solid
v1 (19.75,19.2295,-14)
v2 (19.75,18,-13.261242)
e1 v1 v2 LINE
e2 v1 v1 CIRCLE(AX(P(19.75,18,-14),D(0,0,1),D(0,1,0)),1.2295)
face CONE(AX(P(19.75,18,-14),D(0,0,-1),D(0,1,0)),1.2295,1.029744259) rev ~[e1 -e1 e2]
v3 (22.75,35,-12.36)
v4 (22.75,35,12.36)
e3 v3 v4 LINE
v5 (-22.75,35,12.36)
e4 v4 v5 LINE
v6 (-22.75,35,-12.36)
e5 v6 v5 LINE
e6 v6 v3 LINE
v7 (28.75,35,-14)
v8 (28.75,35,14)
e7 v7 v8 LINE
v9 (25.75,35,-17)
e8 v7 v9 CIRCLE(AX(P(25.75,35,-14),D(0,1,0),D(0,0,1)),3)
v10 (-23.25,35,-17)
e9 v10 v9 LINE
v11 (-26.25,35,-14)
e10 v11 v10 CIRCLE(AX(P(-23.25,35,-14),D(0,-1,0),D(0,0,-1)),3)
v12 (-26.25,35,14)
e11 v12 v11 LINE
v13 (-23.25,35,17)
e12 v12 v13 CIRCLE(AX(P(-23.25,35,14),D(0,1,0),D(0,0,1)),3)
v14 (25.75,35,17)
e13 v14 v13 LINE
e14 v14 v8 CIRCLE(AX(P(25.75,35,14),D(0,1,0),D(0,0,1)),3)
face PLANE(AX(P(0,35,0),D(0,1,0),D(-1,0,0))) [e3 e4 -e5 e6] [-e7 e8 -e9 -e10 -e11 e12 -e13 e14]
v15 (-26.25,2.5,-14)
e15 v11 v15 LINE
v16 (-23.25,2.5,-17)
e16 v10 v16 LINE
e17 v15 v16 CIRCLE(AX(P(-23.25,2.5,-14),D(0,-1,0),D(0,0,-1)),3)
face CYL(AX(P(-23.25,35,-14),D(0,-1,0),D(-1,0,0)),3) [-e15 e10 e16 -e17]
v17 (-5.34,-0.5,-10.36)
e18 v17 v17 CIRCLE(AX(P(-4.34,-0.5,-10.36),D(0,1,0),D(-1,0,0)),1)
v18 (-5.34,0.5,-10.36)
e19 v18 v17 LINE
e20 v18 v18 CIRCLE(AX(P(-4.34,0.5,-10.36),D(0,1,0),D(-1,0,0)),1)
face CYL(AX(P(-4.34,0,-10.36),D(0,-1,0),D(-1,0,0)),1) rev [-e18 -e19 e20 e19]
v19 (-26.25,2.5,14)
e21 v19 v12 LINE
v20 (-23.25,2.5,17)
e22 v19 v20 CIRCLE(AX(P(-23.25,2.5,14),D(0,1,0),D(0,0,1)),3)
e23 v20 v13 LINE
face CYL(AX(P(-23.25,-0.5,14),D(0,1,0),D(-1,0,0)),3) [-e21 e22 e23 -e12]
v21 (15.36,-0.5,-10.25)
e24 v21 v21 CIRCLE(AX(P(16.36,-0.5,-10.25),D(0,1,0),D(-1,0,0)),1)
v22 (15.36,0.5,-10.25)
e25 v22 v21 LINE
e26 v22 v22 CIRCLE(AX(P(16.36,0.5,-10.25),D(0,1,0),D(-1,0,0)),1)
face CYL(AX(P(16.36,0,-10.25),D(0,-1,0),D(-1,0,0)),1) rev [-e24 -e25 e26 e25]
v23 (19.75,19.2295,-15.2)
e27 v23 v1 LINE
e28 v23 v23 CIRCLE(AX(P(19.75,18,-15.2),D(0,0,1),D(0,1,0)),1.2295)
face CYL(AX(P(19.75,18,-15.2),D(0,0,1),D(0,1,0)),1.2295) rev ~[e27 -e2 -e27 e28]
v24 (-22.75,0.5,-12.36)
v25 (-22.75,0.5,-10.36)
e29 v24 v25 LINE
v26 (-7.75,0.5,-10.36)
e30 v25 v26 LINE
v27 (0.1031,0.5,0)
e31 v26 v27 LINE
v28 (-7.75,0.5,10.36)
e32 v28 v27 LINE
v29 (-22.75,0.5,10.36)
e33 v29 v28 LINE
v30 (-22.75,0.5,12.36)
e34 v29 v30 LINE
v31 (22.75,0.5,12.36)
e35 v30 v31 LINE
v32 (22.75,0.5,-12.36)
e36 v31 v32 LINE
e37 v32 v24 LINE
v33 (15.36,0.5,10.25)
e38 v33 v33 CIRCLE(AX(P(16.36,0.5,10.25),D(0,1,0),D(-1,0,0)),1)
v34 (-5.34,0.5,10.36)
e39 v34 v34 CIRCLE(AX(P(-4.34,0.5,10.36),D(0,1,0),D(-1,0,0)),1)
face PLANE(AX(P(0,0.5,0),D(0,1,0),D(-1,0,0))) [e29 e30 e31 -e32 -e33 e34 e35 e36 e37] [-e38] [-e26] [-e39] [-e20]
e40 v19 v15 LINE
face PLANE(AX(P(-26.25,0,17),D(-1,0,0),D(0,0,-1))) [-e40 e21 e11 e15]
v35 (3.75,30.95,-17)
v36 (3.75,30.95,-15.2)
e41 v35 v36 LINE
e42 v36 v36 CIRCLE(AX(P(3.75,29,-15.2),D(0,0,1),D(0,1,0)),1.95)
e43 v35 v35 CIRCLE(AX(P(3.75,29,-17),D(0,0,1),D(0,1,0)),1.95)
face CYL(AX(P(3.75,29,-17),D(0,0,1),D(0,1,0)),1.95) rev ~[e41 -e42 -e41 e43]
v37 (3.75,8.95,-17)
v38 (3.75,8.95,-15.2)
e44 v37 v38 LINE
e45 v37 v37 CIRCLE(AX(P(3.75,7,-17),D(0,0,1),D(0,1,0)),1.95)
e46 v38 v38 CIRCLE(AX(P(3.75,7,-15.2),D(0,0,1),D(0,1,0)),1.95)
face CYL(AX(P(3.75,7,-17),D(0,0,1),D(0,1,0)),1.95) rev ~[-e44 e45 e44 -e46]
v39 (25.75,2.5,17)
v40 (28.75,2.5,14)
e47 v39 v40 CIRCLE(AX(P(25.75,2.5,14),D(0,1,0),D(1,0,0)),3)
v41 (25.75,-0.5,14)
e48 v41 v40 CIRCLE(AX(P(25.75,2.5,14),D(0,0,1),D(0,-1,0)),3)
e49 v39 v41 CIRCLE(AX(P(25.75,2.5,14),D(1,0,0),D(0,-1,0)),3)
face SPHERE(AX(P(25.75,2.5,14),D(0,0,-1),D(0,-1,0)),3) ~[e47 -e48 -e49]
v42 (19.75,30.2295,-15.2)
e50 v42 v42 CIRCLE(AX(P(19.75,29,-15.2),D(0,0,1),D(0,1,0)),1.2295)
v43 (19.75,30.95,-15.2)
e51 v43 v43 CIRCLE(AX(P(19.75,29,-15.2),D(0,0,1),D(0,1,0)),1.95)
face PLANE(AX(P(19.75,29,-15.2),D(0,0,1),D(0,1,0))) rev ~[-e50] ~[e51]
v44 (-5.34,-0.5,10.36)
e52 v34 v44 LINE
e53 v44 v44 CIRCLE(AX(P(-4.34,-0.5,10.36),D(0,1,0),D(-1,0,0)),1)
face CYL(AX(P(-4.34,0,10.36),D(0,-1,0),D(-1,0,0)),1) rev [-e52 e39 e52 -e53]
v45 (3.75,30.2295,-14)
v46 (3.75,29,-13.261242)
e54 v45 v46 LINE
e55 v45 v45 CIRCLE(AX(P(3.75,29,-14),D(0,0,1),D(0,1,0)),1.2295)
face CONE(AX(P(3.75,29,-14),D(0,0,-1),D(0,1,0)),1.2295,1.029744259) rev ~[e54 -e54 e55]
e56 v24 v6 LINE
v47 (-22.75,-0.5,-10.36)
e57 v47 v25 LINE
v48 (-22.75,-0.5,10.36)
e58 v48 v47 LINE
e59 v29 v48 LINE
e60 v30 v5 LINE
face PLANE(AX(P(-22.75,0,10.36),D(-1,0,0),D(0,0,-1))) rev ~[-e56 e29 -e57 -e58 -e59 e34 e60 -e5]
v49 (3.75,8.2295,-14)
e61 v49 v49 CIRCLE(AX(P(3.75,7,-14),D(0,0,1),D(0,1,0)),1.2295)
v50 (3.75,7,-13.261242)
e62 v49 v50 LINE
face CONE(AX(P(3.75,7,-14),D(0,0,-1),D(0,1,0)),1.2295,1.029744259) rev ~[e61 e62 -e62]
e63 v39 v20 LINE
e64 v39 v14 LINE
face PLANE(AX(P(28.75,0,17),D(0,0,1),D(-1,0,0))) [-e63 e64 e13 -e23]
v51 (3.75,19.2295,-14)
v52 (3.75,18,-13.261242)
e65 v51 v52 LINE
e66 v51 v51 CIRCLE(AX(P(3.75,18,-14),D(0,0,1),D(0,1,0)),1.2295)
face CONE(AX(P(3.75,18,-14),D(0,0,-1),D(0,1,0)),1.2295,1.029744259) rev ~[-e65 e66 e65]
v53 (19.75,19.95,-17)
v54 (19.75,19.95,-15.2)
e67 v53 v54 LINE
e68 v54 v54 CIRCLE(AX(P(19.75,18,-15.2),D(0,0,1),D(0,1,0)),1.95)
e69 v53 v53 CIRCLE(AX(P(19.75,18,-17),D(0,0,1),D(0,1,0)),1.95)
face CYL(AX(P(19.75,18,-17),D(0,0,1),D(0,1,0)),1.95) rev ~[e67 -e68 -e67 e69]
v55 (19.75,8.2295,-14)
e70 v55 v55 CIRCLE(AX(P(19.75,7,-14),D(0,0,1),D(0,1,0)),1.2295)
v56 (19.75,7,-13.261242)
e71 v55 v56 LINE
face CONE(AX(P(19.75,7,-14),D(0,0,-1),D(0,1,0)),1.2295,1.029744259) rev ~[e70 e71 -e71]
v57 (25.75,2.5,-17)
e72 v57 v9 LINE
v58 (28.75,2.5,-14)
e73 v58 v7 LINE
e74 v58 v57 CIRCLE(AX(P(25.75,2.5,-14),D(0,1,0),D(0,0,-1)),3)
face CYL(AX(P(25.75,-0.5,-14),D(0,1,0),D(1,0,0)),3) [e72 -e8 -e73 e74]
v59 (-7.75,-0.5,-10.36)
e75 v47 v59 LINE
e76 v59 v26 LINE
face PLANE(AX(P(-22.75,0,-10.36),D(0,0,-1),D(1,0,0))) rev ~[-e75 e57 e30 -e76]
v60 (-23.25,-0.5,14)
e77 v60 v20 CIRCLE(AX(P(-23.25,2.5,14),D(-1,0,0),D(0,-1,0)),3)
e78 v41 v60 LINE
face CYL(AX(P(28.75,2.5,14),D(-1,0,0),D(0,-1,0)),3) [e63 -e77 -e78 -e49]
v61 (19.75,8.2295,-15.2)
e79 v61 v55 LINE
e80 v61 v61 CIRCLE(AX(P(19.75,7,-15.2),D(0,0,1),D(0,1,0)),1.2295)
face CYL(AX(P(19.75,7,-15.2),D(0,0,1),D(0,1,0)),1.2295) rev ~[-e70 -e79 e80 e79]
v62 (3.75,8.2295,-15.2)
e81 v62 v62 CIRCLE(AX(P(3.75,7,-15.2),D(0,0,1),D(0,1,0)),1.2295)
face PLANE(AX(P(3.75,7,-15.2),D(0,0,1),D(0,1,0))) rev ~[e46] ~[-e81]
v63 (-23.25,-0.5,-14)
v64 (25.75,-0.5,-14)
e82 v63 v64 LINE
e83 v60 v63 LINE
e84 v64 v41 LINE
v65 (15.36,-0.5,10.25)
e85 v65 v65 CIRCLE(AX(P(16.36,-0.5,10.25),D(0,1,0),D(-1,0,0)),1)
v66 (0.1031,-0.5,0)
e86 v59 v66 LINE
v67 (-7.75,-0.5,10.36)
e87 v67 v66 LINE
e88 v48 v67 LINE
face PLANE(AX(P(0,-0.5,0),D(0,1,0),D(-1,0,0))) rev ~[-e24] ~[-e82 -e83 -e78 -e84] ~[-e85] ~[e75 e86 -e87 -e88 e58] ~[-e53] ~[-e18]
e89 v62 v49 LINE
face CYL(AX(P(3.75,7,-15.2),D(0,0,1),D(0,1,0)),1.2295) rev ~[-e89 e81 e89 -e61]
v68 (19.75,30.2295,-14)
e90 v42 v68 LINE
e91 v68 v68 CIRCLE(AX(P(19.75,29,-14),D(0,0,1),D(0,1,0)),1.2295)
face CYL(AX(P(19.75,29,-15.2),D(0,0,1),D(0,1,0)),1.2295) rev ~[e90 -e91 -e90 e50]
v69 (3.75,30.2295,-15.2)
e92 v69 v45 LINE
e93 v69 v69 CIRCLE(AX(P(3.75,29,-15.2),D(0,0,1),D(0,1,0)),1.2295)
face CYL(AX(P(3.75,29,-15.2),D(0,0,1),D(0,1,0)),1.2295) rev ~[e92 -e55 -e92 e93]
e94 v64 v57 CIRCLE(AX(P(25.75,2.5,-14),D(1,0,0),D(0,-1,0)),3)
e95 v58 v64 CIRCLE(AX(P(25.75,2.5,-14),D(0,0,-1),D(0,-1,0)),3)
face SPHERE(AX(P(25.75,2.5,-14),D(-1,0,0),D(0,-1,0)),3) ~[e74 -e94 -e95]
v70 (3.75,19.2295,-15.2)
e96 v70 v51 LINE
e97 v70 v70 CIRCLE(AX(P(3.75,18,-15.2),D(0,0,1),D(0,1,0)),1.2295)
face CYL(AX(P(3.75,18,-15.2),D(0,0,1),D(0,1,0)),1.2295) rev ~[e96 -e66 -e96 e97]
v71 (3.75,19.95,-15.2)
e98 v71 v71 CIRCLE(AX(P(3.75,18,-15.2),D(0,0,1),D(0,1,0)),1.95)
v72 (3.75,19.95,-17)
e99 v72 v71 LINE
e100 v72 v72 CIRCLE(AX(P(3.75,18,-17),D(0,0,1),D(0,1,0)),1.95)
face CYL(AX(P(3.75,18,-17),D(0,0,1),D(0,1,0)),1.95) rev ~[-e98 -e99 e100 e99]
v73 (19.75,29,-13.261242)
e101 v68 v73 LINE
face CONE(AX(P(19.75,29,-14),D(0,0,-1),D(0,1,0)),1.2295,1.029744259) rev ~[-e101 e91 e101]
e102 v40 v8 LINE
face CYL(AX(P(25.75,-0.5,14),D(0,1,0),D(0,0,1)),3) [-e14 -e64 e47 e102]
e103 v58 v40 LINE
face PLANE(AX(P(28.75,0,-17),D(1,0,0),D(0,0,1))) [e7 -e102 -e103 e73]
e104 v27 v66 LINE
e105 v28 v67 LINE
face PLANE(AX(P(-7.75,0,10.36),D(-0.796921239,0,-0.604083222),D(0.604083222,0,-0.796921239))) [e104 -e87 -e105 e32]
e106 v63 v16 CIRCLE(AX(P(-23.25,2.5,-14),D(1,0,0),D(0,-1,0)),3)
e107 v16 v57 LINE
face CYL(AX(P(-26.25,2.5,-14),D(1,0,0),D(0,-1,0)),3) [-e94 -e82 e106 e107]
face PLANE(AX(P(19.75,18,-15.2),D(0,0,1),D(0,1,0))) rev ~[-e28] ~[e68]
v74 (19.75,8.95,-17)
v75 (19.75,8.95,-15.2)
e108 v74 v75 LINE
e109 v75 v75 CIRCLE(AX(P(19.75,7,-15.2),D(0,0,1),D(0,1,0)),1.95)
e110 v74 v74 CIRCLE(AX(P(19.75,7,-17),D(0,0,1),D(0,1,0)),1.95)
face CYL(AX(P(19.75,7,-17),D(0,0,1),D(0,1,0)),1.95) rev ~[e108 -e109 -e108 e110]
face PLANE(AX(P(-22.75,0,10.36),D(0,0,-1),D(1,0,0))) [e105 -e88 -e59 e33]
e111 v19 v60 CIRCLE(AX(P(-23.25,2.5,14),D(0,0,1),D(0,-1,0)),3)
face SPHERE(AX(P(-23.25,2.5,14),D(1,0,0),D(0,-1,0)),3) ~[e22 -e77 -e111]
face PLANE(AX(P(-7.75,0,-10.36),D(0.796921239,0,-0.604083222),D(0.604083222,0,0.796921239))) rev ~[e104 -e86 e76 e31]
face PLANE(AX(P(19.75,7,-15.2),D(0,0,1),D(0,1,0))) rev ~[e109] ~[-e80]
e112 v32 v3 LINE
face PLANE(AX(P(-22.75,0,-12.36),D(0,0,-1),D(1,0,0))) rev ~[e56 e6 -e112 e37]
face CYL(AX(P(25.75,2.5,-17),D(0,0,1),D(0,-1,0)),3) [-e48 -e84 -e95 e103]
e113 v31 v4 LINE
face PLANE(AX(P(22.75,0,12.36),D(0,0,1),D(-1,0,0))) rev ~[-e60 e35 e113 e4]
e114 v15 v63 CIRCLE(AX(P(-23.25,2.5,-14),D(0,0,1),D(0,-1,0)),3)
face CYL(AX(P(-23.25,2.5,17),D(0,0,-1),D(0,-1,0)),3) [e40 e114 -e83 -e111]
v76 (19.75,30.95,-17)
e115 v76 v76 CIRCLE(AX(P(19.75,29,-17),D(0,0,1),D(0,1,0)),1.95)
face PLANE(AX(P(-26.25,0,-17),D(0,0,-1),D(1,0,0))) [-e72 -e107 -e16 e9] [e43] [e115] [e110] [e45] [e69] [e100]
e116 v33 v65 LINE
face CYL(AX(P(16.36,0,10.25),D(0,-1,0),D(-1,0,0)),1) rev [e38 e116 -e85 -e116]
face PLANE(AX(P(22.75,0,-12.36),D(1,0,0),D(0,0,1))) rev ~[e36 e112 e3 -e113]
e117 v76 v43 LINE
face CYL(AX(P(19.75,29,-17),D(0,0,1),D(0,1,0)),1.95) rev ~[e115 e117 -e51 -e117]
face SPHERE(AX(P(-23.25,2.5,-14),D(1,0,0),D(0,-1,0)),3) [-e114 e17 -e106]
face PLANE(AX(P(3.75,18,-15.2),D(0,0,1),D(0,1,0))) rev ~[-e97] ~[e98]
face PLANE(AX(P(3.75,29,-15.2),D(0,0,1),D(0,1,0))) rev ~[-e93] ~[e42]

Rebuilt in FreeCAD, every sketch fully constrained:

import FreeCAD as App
import Part
import Sketcher


def edges_at(feature, points):
    """Names of the edges that pass closest to the given points."""
    edges = feature.Shape.Edges
    near = lambda p: min(range(len(edges)), key=lambda i: edges[i].distToShape(Part.Vertex(*p))[0])
    return sorted({f"Edge{near(p) + 1}" for p in points})

doc = App.newDocument("Part")
body = doc.addObject("PartDesign::Body", "Body")

sketch1 = body.newObject("Sketcher::SketchObject", "Sketch")
sketch1.AttachmentSupport = (doc.getObject("XZ_Plane"), [""])
sketch1.MapMode = "FlatFace"
sketch1.addGeometry([
    Part.LineSegment(App.Vector(-26.2, -17, 0), App.Vector(-26.2, 17, 0)),
    Part.LineSegment(App.Vector(-26.2, 17, 0), App.Vector(28.8, 17, 0)),
    Part.LineSegment(App.Vector(28.8, 17, 0), App.Vector(28.8, -17, 0)),
    Part.LineSegment(App.Vector(28.8, -17, 0), App.Vector(-26.2, -17, 0)),
    Part.LineSegment(App.Vector(-7.8, 10.4, 0), App.Vector(-22.8, 10.4, 0)),
    Part.LineSegment(App.Vector(-22.8, 10.4, 0), App.Vector(-22.8, -10.4, 0)),
    Part.LineSegment(App.Vector(-22.8, -10.4, 0), App.Vector(-7.8, -10.4, 0)),
    Part.LineSegment(App.Vector(-7.8, -10.4, 0), App.Vector(0.1, 0, 0)),
    Part.LineSegment(App.Vector(0.1, 0, 0), App.Vector(-7.8, 10.4, 0)),
    Part.Circle(App.Vector(16.4, -10.2, 0), App.Vector(0, 0, 1), 1),
    Part.Circle(App.Vector(-4.3, -10.4, 0), App.Vector(0, 0, 1), 1),
    Part.Circle(App.Vector(16.4, 10.2, 0), App.Vector(0, 0, 1), 1),
    Part.Circle(App.Vector(-4.3, 10.4, 0), App.Vector(0, 0, 1), 1),
], False)
sketch1.addConstraint([
    Sketcher.Constraint("Coincident", 0, 2, 1, 1),
    Sketcher.Constraint("Coincident", 1, 2, 2, 1),
    Sketcher.Constraint("Coincident", 2, 2, 3, 1),
    Sketcher.Constraint("Coincident", 3, 2, 0, 1),
    Sketcher.Constraint("Coincident", 4, 2, 5, 1),
    Sketcher.Constraint("Coincident", 5, 2, 6, 1),
    Sketcher.Constraint("Coincident", 6, 2, 7, 1),
    Sketcher.Constraint("Coincident", 7, 2, 8, 1),
    Sketcher.Constraint("Coincident", 8, 2, 4, 1),
    Sketcher.Constraint("Vertical", 0),
    Sketcher.Constraint("Horizontal", 1),
    Sketcher.Constraint("Vertical", 2),
    Sketcher.Constraint("Horizontal", 3),
    Sketcher.Constraint("Horizontal", 4),
    Sketcher.Constraint("Vertical", 5),
    Sketcher.Constraint("Horizontal", 6),
    Sketcher.Constraint("Equal", 9, 10),
    Sketcher.Constraint("Equal", 10, 11),
    Sketcher.Constraint("Equal", 11, 12),
    Sketcher.Constraint("Symmetric", 9, 3, 11, 3, -1),
    Sketcher.Constraint("Symmetric", 10, 3, 12, 3, -1),
    Sketcher.Constraint("Symmetric", 6, 2, 8, 2, -1),
    Sketcher.Constraint("PointOnObject", 7, 2, -1),
    Sketcher.Constraint("Horizontal", 12, 3, 4, 2),
    Sketcher.Constraint("Diameter", 9, 2.0),
    Sketcher.Constraint("DistanceX", 1, 1, 1, 2, 55.0),
    Sketcher.Constraint("DistanceX", 4, 2, 4, 1, 15.0),
    Sketcher.Constraint("DistanceY", 0, 1, 0, 2, 34.0),
    Sketcher.Constraint("Distance", 7, 13.0),
    Sketcher.Constraint("DistanceX", 10, 3, 9, 3, 20.7),
    Sketcher.Constraint("DistanceY", 9, 3, 11, 3, 20.5),
    Sketcher.Constraint("DistanceX", 0, 2, 4, 2, 3.5),
    Sketcher.Constraint("DistanceX", 4, 2, 12, 3, 18.41),
    Sketcher.Constraint("DistanceY", -1, 1, 0, 2, 17.0),
    Sketcher.Constraint("DistanceY", 5, 2, 5, 1, 20.72),
    Sketcher.Constraint("DistanceX", -1, 1, 9, 3, 16.36),
])
pad1 = body.newObject("PartDesign::Pad", "Pad")
pad1.Profile = sketch1
pad1.Length = 1
pad1.Midplane = True

sketch2 = body.newObject("Sketcher::SketchObject", "Sketch001")
sketch2.AttachmentSupport = (doc.getObject("XZ_Plane"), [""])
sketch2.MapMode = "FlatFace"
sketch2.addGeometry([
    Part.LineSegment(App.Vector(-26, -17, 0), App.Vector(-26, 17, 0)),
    Part.LineSegment(App.Vector(-26, 17, 0), App.Vector(29, 17, 0)),
    Part.LineSegment(App.Vector(29, 17, 0), App.Vector(29, -17, 0)),
    Part.LineSegment(App.Vector(29, -17, 0), App.Vector(-26, -17, 0)),
    Part.LineSegment(App.Vector(-23, 12, 0), App.Vector(-23, -12, 0)),
    Part.LineSegment(App.Vector(-23, -12, 0), App.Vector(23, -12, 0)),
    Part.LineSegment(App.Vector(23, -12, 0), App.Vector(23, 12, 0)),
    Part.LineSegment(App.Vector(23, 12, 0), App.Vector(-23, 12, 0)),
], False)
sketch2.addConstraint([
    Sketcher.Constraint("Coincident", 0, 2, 1, 1),
    Sketcher.Constraint("Coincident", 1, 2, 2, 1),
    Sketcher.Constraint("Coincident", 2, 2, 3, 1),
    Sketcher.Constraint("Coincident", 3, 2, 0, 1),
    Sketcher.Constraint("Coincident", 4, 2, 5, 1),
    Sketcher.Constraint("Coincident", 5, 2, 6, 1),
    Sketcher.Constraint("Coincident", 6, 2, 7, 1),
    Sketcher.Constraint("Coincident", 7, 2, 4, 1),
    Sketcher.Constraint("Vertical", 0),
    Sketcher.Constraint("Horizontal", 1),
    Sketcher.Constraint("Vertical", 2),
    Sketcher.Constraint("Horizontal", 3),
    Sketcher.Constraint("Vertical", 4),
    Sketcher.Constraint("Horizontal", 5),
    Sketcher.Constraint("Vertical", 6),
    Sketcher.Constraint("Horizontal", 7),
    Sketcher.Constraint("Symmetric", 4, 2, 6, 2, -1, 1),
    Sketcher.Constraint("DistanceX", 1, 1, 1, 2, 55.0),
    Sketcher.Constraint("DistanceY", 0, 1, 0, 2, 34.0),
    Sketcher.Constraint("DistanceX", 5, 1, 5, 2, 45.5),
    Sketcher.Constraint("DistanceY", 4, 2, 4, 1, 24.72),
    Sketcher.Constraint("DistanceX", 3, 2, 4, 2, 3.5),
    Sketcher.Constraint("DistanceY", -1, 1, 0, 2, 17.0),
])
pad2 = body.newObject("PartDesign::Pad", "Pad001")
pad2.Profile = sketch2
pad2.Length = 35
pad2.Reversed = True
doc.recompute()

fillet = body.newObject("PartDesign::Fillet", "Fillet")
fillet.Base = (pad2, edges_at(pad2, [
    (1.25, -0.5, -17),
    (28.75, -0.5, 0),
    (1.25, -0.5, 17),
    (-26.25, -0.5, 0),
    (28.75, 17.25, -17),
    (28.75, 17.25, 17),
    (-26.25, 17.25, 17),
    (-26.25, 17.25, -17),
]))
fillet.Radius = 3

sketch3 = body.newObject("Sketcher::SketchObject", "Sketch002")
sketch3.AttachmentSupport = (doc.getObject("XY_Plane"), [""])
sketch3.MapMode = "FlatFace"
sketch3.AttachmentOffset = App.Placement(App.Vector(0, 0, -17), App.Rotation())
sketch3.addGeometry([
    Part.Circle(App.Vector(19.8, 7, 0), App.Vector(0, 0, 1), 1.2),
    Part.Circle(App.Vector(19.8, 18, 0), App.Vector(0, 0, 1), 1.2),
    Part.Circle(App.Vector(3.8, 18, 0), App.Vector(0, 0, 1), 1.2),
    Part.Circle(App.Vector(3.8, 7, 0), App.Vector(0, 0, 1), 1.2),
    Part.Circle(App.Vector(19.8, 29, 0), App.Vector(0, 0, 1), 1.2),
    Part.Circle(App.Vector(3.8, 29, 0), App.Vector(0, 0, 1), 1.2),
], False)
sketch3.addConstraint([
    Sketcher.Constraint("Equal", 0, 1),
    Sketcher.Constraint("Equal", 1, 2),
    Sketcher.Constraint("Equal", 2, 3),
    Sketcher.Constraint("Equal", 3, 4),
    Sketcher.Constraint("Equal", 4, 5),
    Sketcher.Constraint("Horizontal", 1, 3, 2, 3),
    Sketcher.Constraint("Horizontal", 0, 3, 3, 3),
    Sketcher.Constraint("Horizontal", 4, 3, 5, 3),
    Sketcher.Constraint("Vertical", 0, 3, 1, 3),
    Sketcher.Constraint("Vertical", 2, 3, 3, 3),
    Sketcher.Constraint("Vertical", 1, 3, 4, 3),
    Sketcher.Constraint("Vertical", 3, 3, 5, 3),
    Sketcher.Constraint("Diameter", 0, 2.459),
    Sketcher.Constraint("DistanceY", -1, 1, 0, 3, 7.0),
    Sketcher.Constraint("DistanceY", -1, 1, 1, 3, 18.0),
    Sketcher.Constraint("DistanceY", -1, 1, 4, 3, 29.0),
    Sketcher.Constraint("DistanceX", 2, 3, 1, 3, 16.0),
    Sketcher.Constraint("DistanceX", -1, 1, 0, 3, 19.75),
])
doc.recompute()
hole = body.newObject("PartDesign::Hole", "Hole")
hole.Profile = sketch3
hole.ThreadType = "None"
hole.Diameter = 2.459
hole.DepthType = "Dimension"
hole.Depth = 3
hole.DrillPoint = "Angled"
hole.DrillPointAngle = 118
hole.HoleCutType = "Counterbore"
hole.HoleCutDiameter = 3.9
hole.HoleCutDepth = 1.8
hole.Reversed = True

doc.recompute()
